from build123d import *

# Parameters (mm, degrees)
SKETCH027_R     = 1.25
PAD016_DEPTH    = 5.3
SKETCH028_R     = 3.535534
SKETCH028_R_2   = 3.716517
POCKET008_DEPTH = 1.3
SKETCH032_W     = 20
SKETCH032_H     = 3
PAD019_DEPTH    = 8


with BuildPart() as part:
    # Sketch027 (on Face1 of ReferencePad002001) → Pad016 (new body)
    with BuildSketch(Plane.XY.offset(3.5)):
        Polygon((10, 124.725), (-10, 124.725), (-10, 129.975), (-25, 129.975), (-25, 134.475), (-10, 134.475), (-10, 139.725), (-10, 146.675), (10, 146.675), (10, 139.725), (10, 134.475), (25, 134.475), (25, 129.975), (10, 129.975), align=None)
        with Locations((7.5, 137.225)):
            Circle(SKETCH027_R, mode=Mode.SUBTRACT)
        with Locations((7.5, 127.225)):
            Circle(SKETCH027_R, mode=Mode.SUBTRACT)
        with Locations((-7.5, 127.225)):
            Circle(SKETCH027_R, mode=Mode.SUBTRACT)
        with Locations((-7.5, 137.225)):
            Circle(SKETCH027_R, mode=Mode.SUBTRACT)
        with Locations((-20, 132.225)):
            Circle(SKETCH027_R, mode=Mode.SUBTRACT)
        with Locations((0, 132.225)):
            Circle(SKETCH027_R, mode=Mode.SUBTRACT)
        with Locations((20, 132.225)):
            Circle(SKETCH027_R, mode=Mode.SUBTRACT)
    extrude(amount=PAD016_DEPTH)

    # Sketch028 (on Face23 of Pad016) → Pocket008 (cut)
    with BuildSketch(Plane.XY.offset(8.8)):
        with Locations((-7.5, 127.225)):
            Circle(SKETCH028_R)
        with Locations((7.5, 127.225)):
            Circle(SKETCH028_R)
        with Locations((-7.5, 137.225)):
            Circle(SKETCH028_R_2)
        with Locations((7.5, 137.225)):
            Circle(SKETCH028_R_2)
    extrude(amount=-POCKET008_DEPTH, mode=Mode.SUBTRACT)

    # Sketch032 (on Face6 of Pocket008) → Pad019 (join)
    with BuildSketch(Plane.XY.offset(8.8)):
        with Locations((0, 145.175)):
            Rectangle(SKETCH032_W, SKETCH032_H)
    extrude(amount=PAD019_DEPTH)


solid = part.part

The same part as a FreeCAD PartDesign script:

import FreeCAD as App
import Part
import Sketcher
Q = App.Units.Quantity

doc = App.newDocument("Part")
body = doc.addObject("PartDesign::Body", "Body")

# Sketch on XY plane
sketch1 = body.newObject("Sketcher::SketchObject", "Sketch")
sketch1.AttachmentSupport = (doc.getObject("XY_Plane"), [""])
sketch1.MapMode = "FlatFace"
sketch1.AttachmentOffset = App.Placement(App.Vector(0, 0, 3.5), App.Rotation())
sketch1.addGeometry([
    Part.LineSegment(App.Vector(-10, 124.725, 0), App.Vector(10, 124.725, 0)),  # 0
    Part.LineSegment(App.Vector(10, 124.725, 0), App.Vector(10, 129.975, 0)),  # 1
    Part.LineSegment(App.Vector(10, 129.975, 0), App.Vector(25, 129.975, 0)),  # 2
    Part.LineSegment(App.Vector(25, 129.975, 0), App.Vector(25, 134.475, 0)),  # 3
    Part.LineSegment(App.Vector(25, 134.475, 0), App.Vector(10, 134.475, 0)),  # 4
    Part.LineSegment(App.Vector(10, 134.475, 0), App.Vector(10, 146.675, 0)),  # 5
    Part.LineSegment(App.Vector(10, 146.675, 0), App.Vector(-10, 146.675, 0)),  # 6
    Part.LineSegment(App.Vector(-10, 146.675, 0), App.Vector(-10, 134.475, 0)),  # 7
    Part.LineSegment(App.Vector(-10, 134.475, 0), App.Vector(-25, 134.475, 0)),  # 8
    Part.LineSegment(App.Vector(-25, 134.475, 0), App.Vector(-25, 129.975, 0)),  # 9
    Part.LineSegment(App.Vector(-25, 129.975, 0), App.Vector(-10, 129.975, 0)),  # 10
    Part.LineSegment(App.Vector(-10, 129.975, 0), App.Vector(-10, 124.725, 0)),  # 11
    Part.Circle(App.Vector(7.5, 127.225, 0), App.Vector(0, 0, 1), 1.25),  # 12
    Part.Circle(App.Vector(-7.5, 127.225, 0), App.Vector(0, 0, 1), 1.25),  # 13
    Part.Circle(App.Vector(20, 132.225, 0), App.Vector(0, 0, 1), 1.25),  # 14
    Part.Circle(App.Vector(7.5, 137.225, 0), App.Vector(0, 0, 1), 1.25),  # 15
    Part.Circle(App.Vector(0, 132.225, 0), App.Vector(0, 0, 1), 1.25),  # 16
    Part.Circle(App.Vector(-20, 132.225, 0), App.Vector(0, 0, 1), 1.25),  # 17
    Part.Circle(App.Vector(-7.5, 137.225, 0), App.Vector(0, 0, 1), 1.25),  # 18
], False)
sketch1.addConstraint([
    Sketcher.Constraint("Coincident", 0, 2, 1, 1),
    Sketcher.Constraint("Coincident", 1, 2, 2, 1),
    Sketcher.Constraint("Coincident", 2, 2, 3, 1),
    Sketcher.Constraint("Coincident", 3, 2, 4, 1),
    Sketcher.Constraint("Coincident", 4, 2, 5, 1),
    Sketcher.Constraint("Coincident", 5, 2, 6, 1),
    Sketcher.Constraint("Coincident", 6, 2, 7, 1),
    Sketcher.Constraint("Coincident", 7, 2, 8, 1),
    Sketcher.Constraint("Coincident", 8, 2, 9, 1),
    Sketcher.Constraint("Coincident", 9, 2, 10, 1),
    Sketcher.Constraint("Coincident", 10, 2, 11, 1),
    Sketcher.Constraint("Coincident", 11, 2, 0, 1),
    Sketcher.Constraint("Horizontal", 0),
    Sketcher.Constraint("Vertical", 1),
    Sketcher.Constraint("Horizontal", 2),
    Sketcher.Constraint("Vertical", 3),
    Sketcher.Constraint("Horizontal", 4),
    Sketcher.Constraint("Vertical", 5),
    Sketcher.Constraint("Horizontal", 6),
    Sketcher.Constraint("Vertical", 7),
    Sketcher.Constraint("Horizontal", 8),
    Sketcher.Constraint("Vertical", 9),
    Sketcher.Constraint("Horizontal", 10),
    Sketcher.Constraint("Vertical", 11),
    Sketcher.Constraint("Equal", 12, 13),
    Sketcher.Constraint("Equal", 13, 14),
    Sketcher.Constraint("Equal", 14, 15),
    Sketcher.Constraint("Equal", 15, 16),
    Sketcher.Constraint("Equal", 16, 17),
    Sketcher.Constraint("Equal", 17, 18),
    Sketcher.Constraint("Symmetric", 12, 3, 13, 3, -2),
    Sketcher.Constraint("Symmetric", 14, 3, 17, 3, -2),
    Sketcher.Constraint("Symmetric", 15, 3, 18, 3, -2),
    Sketcher.Constraint("Symmetric", 4, 2, 7, 2, -2),
    Sketcher.Constraint("Symmetric", 2, 2, 9, 2, -2),
    Sketcher.Constraint("PointOnObject", 16, 3, -2),
    Sketcher.Constraint("Horizontal", 14, 3, 16, 3),
    Sketcher.Constraint("Vertical", 12, 3, 15, 3),
    Sketcher.Constraint("Vertical", 1, 2, 4, 2),
    Sketcher.Constraint("Vertical", 7, 2, 10, 2),
    Sketcher.Constraint("Diameter", 12, Q("2.5 mm")),
    Sketcher.Constraint("DistanceX", 0, 1, 0, 2, Q("20 mm")),
    Sketcher.Constraint("DistanceX", 2, 1, 2, 2, Q("15 mm")),
    Sketcher.Constraint("DistanceY", 3, 1, 3, 2, Q("4.5 mm")),
    Sketcher.Constraint("DistanceY", 5, 1, 5, 2, Q("12.2 mm")),
    Sketcher.Constraint("DistanceX", -1, 1, 14, 3, Q("20 mm")),
    Sketcher.Constraint("DistanceX", 13, 3, 12, 3, Q("15 mm")),
    Sketcher.Constraint("DistanceY", 12, 3, 14, 3, Q("5 mm")),
    Sketcher.Constraint("DistanceY", 12, 3, 15, 3, Q("10 mm")),
    Sketcher.Constraint("DistanceY", 1, 1, 1, 2, Q("5.25 mm")),
    Sketcher.Constraint("DistanceY", 0, 2, 12, 3, Q("2.5 mm")),
    Sketcher.Constraint("DistanceY", -1, 1, 12, 3, Q("127.225 mm")),
])
pad1 = body.newObject("PartDesign::Pad", "Pad")
pad1.Profile = sketch1
pad1.Length = 5.3

# Sketch on XY plane
sketch2 = body.newObject("Sketcher::SketchObject", "Sketch001")
sketch2.AttachmentSupport = (doc.getObject("XY_Plane"), [""])
sketch2.MapMode = "FlatFace"
sketch2.AttachmentOffset = App.Placement(App.Vector(0, 0, 8.8), App.Rotation())
sketch2.addGeometry([
    Part.Circle(App.Vector(-7.5, 127.225, 0), App.Vector(0, 0, 1), 3.535534),
    Part.Circle(App.Vector(7.5, 127.225, 0), App.Vector(0, 0, 1), 3.535534),
    Part.Circle(App.Vector(-7.5, 137.225, 0), App.Vector(0, 0, 1), 3.716517),
    Part.Circle(App.Vector(7.5, 137.225, 0), App.Vector(0, 0, 1), 3.716517),
], False)
sketch2.addConstraint([
    Sketcher.Constraint("Equal", 0, 1),
    Sketcher.Constraint("Equal", 2, 3),
    Sketcher.Constraint("Symmetric", 0, 3, 1, 3, -2),
    Sketcher.Constraint("Symmetric", 2, 3, 3, 3, -2),
    Sketcher.Constraint("Vertical", 0, 3, 2, 3),
    Sketcher.Constraint("DistanceX", 0, 3, 1, 3, Q("15 mm")),
    Sketcher.Constraint("DistanceY", 0, 3, 2, 3, Q("10 mm")),
    Sketcher.Constraint("Diameter", 0, Q("7.071068 mm")),
    Sketcher.Constraint("Diameter", 2, Q("7.433034 mm")),
    Sketcher.Constraint("DistanceY", -1, 1, 0, 3, Q("127.225 mm")),
])
pocket1 = body.newObject("PartDesign::Pocket", "Pocket")
pocket1.Profile = sketch2
pocket1.Length = 1.3

# Sketch on XY plane
sketch3 = body.newObject("Sketcher::SketchObject", "Sketch002")
sketch3.AttachmentSupport = (doc.getObject("XY_Plane"), [""])
sketch3.MapMode = "FlatFace"
sketch3.AttachmentOffset = App.Placement(App.Vector(0, 0, 8.8), App.Rotation())
sketch3.addGeometry([
    Part.LineSegment(App.Vector(-10, 146.675, 0), App.Vector(-10, 143.675, 0)),
    Part.LineSegment(App.Vector(-10, 143.675, 0), App.Vector(10, 143.675, 0)),
    Part.LineSegment(App.Vector(10, 143.675, 0), App.Vector(10, 146.675, 0)),
    Part.LineSegment(App.Vector(10, 146.675, 0), App.Vector(-10, 146.675, 0)),
], False)
sketch3.addConstraint([
    Sketcher.Constraint("Coincident", 0, 2, 1, 1),
    Sketcher.Constraint("Coincident", 1, 2, 2, 1),
    Sketcher.Constraint("Coincident", 2, 2, 3, 1),
    Sketcher.Constraint("Coincident", 3, 2, 0, 1),
    Sketcher.Constraint("Vertical", 0),
    Sketcher.Constraint("Horizontal", 1),
    Sketcher.Constraint("Vertical", 2),
    Sketcher.Constraint("Horizontal", 3),
    Sketcher.Constraint("DistanceX", 1, 1, 1, 2, Q("20 mm")),
    Sketcher.Constraint("DistanceY", 0, 2, 0, 1, Q("3 mm")),
    Sketcher.Constraint("DistanceX", 0, 2, -1, 1, Q("10 mm")),
    Sketcher.Constraint("DistanceY", -1, 1, 0, 2, Q("143.675 mm")),
])
pad2 = body.newObject("PartDesign::Pad", "Pad001")
pad2.Profile = sketch3
pad2.Length = 8

doc.recompute()
